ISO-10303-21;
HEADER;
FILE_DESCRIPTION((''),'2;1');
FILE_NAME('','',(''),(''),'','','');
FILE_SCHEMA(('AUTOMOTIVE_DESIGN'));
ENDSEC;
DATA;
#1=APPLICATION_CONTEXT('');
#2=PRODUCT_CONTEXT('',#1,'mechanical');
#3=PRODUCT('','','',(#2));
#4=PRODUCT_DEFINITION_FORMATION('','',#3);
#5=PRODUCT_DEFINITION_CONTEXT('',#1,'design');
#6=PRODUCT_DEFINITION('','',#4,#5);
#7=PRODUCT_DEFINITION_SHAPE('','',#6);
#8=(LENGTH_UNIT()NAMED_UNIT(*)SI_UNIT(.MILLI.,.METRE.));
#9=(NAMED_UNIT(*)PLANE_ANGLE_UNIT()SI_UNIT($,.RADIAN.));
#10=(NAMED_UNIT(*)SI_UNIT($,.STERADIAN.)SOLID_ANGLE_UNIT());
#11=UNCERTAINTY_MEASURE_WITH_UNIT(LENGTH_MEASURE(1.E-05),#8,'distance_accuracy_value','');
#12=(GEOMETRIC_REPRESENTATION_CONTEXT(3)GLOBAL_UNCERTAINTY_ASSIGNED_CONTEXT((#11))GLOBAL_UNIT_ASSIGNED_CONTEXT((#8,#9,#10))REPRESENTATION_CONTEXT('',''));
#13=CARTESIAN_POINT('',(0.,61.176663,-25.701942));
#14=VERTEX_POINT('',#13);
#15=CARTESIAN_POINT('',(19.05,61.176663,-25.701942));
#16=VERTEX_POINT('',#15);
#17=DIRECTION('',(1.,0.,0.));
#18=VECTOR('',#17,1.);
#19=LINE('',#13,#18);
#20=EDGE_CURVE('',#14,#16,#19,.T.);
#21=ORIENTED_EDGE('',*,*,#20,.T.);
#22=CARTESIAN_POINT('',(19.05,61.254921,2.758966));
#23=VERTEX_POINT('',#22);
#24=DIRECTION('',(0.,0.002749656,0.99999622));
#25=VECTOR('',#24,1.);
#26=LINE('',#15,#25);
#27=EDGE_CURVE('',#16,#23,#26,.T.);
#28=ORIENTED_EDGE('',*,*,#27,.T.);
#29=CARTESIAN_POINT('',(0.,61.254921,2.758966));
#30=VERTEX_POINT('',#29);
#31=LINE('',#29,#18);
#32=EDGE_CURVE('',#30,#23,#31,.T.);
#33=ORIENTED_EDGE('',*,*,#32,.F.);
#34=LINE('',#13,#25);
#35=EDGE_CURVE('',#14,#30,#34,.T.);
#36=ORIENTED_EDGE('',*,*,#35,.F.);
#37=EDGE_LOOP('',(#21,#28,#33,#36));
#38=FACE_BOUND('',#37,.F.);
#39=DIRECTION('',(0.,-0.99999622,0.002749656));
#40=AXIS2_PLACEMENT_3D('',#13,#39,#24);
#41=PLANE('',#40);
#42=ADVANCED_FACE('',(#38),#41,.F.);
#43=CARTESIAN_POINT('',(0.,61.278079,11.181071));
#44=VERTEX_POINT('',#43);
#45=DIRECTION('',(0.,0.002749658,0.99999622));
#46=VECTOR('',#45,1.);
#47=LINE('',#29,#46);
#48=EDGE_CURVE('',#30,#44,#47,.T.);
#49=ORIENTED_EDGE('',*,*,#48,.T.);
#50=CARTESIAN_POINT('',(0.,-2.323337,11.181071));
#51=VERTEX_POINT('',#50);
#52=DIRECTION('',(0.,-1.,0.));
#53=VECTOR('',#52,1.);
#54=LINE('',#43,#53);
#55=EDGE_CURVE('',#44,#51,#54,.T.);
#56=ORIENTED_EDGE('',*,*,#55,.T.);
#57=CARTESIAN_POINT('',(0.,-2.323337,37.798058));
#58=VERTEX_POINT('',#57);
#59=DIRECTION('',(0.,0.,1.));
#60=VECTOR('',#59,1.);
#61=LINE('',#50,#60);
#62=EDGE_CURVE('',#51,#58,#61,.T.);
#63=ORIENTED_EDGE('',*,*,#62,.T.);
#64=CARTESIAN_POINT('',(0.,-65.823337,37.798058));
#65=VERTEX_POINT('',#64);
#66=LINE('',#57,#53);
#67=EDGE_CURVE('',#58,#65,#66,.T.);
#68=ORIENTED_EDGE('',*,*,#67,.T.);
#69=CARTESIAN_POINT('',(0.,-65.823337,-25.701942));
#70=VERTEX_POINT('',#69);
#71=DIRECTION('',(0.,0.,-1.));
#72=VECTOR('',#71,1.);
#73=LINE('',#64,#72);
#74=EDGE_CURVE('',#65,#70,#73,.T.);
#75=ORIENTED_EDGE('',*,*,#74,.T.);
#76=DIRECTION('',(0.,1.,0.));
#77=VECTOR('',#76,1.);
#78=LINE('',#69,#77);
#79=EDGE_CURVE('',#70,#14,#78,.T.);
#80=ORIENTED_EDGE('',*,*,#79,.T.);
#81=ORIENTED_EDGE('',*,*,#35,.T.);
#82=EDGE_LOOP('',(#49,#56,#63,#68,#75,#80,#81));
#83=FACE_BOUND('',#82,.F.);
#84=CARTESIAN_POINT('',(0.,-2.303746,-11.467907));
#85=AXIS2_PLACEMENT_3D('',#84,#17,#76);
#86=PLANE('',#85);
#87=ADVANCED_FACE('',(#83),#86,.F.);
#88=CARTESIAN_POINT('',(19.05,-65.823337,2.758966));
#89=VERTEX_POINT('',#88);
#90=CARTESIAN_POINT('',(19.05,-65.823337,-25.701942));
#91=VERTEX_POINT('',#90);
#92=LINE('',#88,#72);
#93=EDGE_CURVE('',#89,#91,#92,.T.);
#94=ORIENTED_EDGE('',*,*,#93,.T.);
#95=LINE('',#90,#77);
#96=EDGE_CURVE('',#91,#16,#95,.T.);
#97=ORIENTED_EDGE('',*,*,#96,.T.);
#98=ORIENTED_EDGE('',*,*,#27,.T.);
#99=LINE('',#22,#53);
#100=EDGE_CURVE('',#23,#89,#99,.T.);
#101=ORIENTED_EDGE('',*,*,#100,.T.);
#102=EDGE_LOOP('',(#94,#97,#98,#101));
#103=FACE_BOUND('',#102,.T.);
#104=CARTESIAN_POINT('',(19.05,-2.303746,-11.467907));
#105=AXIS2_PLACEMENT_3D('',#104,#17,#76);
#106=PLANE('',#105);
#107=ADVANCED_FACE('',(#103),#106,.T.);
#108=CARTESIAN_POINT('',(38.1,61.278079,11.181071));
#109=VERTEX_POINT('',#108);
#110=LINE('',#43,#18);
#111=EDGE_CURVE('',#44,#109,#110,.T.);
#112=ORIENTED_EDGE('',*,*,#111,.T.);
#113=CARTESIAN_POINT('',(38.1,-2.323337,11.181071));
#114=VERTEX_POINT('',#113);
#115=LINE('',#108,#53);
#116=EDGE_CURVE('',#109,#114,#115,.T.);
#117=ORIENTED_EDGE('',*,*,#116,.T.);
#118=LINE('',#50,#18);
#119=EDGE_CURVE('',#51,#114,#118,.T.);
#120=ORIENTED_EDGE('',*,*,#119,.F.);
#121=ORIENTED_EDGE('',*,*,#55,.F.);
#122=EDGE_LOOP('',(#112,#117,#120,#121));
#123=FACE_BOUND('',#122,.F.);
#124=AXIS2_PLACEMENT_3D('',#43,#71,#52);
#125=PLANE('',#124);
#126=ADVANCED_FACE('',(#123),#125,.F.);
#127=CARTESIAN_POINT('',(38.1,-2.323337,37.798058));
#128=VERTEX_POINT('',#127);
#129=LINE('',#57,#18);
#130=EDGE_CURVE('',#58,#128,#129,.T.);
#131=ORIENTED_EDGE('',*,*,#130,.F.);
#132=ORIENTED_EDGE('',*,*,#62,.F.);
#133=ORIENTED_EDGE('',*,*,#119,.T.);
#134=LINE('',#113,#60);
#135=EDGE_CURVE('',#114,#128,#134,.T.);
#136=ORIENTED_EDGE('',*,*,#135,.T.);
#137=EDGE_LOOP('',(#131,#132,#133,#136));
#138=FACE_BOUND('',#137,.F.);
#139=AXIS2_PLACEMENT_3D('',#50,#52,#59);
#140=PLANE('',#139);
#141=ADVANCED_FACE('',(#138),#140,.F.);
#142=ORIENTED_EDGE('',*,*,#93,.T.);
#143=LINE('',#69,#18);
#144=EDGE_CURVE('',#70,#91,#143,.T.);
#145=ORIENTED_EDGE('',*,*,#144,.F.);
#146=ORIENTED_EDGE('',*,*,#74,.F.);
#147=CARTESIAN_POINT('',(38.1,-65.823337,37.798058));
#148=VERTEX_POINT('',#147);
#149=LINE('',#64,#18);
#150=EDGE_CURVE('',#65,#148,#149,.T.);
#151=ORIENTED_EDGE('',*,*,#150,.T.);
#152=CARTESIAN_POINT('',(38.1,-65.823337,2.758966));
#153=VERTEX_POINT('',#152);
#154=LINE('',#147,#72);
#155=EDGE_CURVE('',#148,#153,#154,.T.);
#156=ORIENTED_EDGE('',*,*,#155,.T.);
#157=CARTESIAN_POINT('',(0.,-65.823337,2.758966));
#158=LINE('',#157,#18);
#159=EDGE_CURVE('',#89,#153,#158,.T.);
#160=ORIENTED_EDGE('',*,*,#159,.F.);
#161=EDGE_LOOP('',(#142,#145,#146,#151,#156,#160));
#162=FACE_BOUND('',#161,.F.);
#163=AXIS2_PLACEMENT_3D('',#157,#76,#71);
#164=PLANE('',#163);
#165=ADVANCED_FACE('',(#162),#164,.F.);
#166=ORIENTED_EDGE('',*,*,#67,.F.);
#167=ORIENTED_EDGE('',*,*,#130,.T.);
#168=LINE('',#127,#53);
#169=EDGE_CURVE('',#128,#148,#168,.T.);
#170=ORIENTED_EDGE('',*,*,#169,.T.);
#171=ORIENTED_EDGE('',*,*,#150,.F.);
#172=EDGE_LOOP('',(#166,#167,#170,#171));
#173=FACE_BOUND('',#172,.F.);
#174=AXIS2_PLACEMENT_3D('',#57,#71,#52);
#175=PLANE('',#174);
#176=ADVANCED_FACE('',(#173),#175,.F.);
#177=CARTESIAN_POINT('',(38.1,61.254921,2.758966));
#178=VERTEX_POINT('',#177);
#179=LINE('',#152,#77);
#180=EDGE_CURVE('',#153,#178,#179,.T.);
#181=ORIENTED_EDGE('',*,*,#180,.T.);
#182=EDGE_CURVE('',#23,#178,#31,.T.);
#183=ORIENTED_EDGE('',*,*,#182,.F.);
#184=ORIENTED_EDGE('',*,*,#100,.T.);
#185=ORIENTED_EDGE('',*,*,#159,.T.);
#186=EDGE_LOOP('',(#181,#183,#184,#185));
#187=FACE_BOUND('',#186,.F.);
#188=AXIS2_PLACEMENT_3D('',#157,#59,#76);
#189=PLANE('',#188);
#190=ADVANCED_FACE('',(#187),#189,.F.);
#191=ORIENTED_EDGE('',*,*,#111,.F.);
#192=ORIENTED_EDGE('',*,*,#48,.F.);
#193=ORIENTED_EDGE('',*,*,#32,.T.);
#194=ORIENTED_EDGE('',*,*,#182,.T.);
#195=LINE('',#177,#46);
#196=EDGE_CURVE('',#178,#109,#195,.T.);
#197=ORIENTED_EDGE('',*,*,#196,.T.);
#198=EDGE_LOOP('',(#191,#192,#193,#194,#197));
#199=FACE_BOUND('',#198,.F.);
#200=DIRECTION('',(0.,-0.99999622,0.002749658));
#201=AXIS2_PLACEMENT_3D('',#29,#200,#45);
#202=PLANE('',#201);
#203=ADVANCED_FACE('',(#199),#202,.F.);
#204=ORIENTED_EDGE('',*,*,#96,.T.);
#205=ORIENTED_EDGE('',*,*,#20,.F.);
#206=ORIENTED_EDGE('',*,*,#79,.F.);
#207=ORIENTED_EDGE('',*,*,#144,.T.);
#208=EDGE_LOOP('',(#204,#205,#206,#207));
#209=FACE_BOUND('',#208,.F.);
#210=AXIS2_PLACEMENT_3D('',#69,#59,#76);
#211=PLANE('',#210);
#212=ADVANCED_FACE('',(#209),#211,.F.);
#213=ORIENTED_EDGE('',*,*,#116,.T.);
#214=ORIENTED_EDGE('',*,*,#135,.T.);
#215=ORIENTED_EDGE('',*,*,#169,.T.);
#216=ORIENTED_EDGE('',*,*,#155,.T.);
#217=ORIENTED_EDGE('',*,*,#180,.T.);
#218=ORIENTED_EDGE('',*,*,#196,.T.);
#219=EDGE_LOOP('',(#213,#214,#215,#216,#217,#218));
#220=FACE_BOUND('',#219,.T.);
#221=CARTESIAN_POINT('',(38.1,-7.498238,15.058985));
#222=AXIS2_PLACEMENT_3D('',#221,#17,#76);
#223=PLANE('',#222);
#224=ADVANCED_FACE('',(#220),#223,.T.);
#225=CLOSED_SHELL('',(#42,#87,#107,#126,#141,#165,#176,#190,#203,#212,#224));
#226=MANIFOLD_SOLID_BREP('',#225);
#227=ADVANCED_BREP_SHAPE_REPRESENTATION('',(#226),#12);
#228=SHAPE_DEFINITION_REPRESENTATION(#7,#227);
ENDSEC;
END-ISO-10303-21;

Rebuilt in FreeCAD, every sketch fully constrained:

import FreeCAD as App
import Part
import Sketcher

V = App.Vector
Q = App.Units.Quantity

doc = App.newDocument("Part")
body = doc.addObject("PartDesign::Body", "Body")

# Sketch on YZ plane
sketch1 = body.newObject("Sketcher::SketchObject", "Sketch")
sketch1.AttachmentSupport = (doc.getObject("YZ_Plane"), [""])
sketch1.MapMode = "FlatFace"
sketch1.addGeometry(Part.LineSegment(V(-65.823337, 37.798058, 0), V(-65.823337, 2.758966, 0)), False)
sketch1.addGeometry(Part.LineSegment(V(-65.823337, 2.758966, 0), V(61.254921, 2.758966, 0)), False)
sketch1.addGeometry(Part.LineSegment(V(61.254921, 2.758966, 0), V(61.278079, 11.181071, 0)), False)
sketch1.addGeometry(Part.LineSegment(V(61.278079, 11.181071, 0), V(-2.323337, 11.181071, 0)), False)
sketch1.addGeometry(Part.LineSegment(V(-2.323337, 11.181071, 0), V(-2.323337, 37.798058, 0)), False)
sketch1.addGeometry(Part.LineSegment(V(-2.323337, 37.798058, 0), V(-65.823337, 37.798058, 0)), False)
sketch1.addConstraint(Sketcher.Constraint("Coincident", 0, 2, 1, 1))
sketch1.addConstraint(Sketcher.Constraint("Coincident", 1, 2, 2, 1))
sketch1.addConstraint(Sketcher.Constraint("Coincident", 2, 2, 3, 1))
sketch1.addConstraint(Sketcher.Constraint("Coincident", 3, 2, 4, 1))
sketch1.addConstraint(Sketcher.Constraint("Coincident", 4, 2, 5, 1))
sketch1.addConstraint(Sketcher.Constraint("Coincident", 5, 2, 0, 1))
sketch1.addConstraint(Sketcher.Constraint("Vertical", 0))
sketch1.addConstraint(Sketcher.Constraint("Horizontal", 1))
sketch1.addConstraint(Sketcher.Constraint("Horizontal", 3))
sketch1.addConstraint(Sketcher.Constraint("Vertical", 4))
sketch1.addConstraint(Sketcher.Constraint("Horizontal", 5))
sketch1.addConstraint(Sketcher.Constraint("DistanceX", 5, 2, 5, 1, Q("2.5 in")))
sketch1.addConstraint(Sketcher.Constraint("DistanceX", 1, 1, 1, 2, 127.078258))
sketch1.addConstraint(Sketcher.Constraint("DistanceY", 0, 2, 0, 1, 35.039092))
sketch1.addConstraint(Sketcher.Constraint("DistanceX", 3, 2, 3, 1, 63.601416))
sketch1.addConstraint(Sketcher.Constraint("DistanceY", 4, 1, 4, 2, 26.616987))
sketch1.addConstraint(Sketcher.Constraint("DistanceX", -1, 1, 1, 2, 61.254921))
sketch1.addConstraint(Sketcher.Constraint("DistanceY", -1, 1, 2, 2, 11.181071))
pad1 = body.newObject("PartDesign::Pad", "Pad")
pad1.Profile = sketch1
pad1.Length = Q("1.5 in")

# Sketch on YZ plane
sketch2 = body.newObject("Sketcher::SketchObject", "Sketch001")
sketch2.AttachmentSupport = (doc.getObject("YZ_Plane"), [""])
sketch2.MapMode = "FlatFace"
sketch2.addGeometry(Part.LineSegment(V(-65.823337, 2.758966, 0), V(-65.823337, -25.701942, 0)), False)
sketch2.addGeometry(Part.LineSegment(V(-65.823337, -25.701942, 0), V(61.176663, -25.701942, 0)), False)
sketch2.addGeometry(Part.LineSegment(V(61.176663, -25.701942, 0), V(61.254921, 2.758966, 0)), False)
sketch2.addGeometry(Part.LineSegment(V(61.254921, 2.758966, 0), V(-65.823337, 2.758966, 0)), False)
sketch2.addConstraint(Sketcher.Constraint("Coincident", 0, 2, 1, 1))
sketch2.addConstraint(Sketcher.Constraint("Coincident", 1, 2, 2, 1))
sketch2.addConstraint(Sketcher.Constraint("Coincident", 2, 2, 3, 1))
sketch2.addConstraint(Sketcher.Constraint("Coincident", 3, 2, 0, 1))
sketch2.addConstraint(Sketcher.Constraint("Vertical", 0))
sketch2.addConstraint(Sketcher.Constraint("Horizontal", 1))
sketch2.addConstraint(Sketcher.Constraint("Horizontal", 3))
sketch2.addConstraint(Sketcher.Constraint("DistanceX", 1, 1, 1, 2, Q("5 in")))
sketch2.addConstraint(Sketcher.Constraint("DistanceX", 3, 2, 3, 1, 127.078258))
sketch2.addConstraint(Sketcher.Constraint("DistanceY", 0, 2, 0, 1, 28.460908))
sketch2.addConstraint(Sketcher.Constraint("DistanceY", 0, 2, -1, 1, 25.701942))
sketch2.addConstraint(Sketcher.Constraint("DistanceX", -1, 1, 2, 2, 61.254921))
pad2 = body.newObject("PartDesign::Pad", "Pad001")
pad2.Profile = sketch2
pad2.Length = Q("0.75 in")

doc.recompute()
